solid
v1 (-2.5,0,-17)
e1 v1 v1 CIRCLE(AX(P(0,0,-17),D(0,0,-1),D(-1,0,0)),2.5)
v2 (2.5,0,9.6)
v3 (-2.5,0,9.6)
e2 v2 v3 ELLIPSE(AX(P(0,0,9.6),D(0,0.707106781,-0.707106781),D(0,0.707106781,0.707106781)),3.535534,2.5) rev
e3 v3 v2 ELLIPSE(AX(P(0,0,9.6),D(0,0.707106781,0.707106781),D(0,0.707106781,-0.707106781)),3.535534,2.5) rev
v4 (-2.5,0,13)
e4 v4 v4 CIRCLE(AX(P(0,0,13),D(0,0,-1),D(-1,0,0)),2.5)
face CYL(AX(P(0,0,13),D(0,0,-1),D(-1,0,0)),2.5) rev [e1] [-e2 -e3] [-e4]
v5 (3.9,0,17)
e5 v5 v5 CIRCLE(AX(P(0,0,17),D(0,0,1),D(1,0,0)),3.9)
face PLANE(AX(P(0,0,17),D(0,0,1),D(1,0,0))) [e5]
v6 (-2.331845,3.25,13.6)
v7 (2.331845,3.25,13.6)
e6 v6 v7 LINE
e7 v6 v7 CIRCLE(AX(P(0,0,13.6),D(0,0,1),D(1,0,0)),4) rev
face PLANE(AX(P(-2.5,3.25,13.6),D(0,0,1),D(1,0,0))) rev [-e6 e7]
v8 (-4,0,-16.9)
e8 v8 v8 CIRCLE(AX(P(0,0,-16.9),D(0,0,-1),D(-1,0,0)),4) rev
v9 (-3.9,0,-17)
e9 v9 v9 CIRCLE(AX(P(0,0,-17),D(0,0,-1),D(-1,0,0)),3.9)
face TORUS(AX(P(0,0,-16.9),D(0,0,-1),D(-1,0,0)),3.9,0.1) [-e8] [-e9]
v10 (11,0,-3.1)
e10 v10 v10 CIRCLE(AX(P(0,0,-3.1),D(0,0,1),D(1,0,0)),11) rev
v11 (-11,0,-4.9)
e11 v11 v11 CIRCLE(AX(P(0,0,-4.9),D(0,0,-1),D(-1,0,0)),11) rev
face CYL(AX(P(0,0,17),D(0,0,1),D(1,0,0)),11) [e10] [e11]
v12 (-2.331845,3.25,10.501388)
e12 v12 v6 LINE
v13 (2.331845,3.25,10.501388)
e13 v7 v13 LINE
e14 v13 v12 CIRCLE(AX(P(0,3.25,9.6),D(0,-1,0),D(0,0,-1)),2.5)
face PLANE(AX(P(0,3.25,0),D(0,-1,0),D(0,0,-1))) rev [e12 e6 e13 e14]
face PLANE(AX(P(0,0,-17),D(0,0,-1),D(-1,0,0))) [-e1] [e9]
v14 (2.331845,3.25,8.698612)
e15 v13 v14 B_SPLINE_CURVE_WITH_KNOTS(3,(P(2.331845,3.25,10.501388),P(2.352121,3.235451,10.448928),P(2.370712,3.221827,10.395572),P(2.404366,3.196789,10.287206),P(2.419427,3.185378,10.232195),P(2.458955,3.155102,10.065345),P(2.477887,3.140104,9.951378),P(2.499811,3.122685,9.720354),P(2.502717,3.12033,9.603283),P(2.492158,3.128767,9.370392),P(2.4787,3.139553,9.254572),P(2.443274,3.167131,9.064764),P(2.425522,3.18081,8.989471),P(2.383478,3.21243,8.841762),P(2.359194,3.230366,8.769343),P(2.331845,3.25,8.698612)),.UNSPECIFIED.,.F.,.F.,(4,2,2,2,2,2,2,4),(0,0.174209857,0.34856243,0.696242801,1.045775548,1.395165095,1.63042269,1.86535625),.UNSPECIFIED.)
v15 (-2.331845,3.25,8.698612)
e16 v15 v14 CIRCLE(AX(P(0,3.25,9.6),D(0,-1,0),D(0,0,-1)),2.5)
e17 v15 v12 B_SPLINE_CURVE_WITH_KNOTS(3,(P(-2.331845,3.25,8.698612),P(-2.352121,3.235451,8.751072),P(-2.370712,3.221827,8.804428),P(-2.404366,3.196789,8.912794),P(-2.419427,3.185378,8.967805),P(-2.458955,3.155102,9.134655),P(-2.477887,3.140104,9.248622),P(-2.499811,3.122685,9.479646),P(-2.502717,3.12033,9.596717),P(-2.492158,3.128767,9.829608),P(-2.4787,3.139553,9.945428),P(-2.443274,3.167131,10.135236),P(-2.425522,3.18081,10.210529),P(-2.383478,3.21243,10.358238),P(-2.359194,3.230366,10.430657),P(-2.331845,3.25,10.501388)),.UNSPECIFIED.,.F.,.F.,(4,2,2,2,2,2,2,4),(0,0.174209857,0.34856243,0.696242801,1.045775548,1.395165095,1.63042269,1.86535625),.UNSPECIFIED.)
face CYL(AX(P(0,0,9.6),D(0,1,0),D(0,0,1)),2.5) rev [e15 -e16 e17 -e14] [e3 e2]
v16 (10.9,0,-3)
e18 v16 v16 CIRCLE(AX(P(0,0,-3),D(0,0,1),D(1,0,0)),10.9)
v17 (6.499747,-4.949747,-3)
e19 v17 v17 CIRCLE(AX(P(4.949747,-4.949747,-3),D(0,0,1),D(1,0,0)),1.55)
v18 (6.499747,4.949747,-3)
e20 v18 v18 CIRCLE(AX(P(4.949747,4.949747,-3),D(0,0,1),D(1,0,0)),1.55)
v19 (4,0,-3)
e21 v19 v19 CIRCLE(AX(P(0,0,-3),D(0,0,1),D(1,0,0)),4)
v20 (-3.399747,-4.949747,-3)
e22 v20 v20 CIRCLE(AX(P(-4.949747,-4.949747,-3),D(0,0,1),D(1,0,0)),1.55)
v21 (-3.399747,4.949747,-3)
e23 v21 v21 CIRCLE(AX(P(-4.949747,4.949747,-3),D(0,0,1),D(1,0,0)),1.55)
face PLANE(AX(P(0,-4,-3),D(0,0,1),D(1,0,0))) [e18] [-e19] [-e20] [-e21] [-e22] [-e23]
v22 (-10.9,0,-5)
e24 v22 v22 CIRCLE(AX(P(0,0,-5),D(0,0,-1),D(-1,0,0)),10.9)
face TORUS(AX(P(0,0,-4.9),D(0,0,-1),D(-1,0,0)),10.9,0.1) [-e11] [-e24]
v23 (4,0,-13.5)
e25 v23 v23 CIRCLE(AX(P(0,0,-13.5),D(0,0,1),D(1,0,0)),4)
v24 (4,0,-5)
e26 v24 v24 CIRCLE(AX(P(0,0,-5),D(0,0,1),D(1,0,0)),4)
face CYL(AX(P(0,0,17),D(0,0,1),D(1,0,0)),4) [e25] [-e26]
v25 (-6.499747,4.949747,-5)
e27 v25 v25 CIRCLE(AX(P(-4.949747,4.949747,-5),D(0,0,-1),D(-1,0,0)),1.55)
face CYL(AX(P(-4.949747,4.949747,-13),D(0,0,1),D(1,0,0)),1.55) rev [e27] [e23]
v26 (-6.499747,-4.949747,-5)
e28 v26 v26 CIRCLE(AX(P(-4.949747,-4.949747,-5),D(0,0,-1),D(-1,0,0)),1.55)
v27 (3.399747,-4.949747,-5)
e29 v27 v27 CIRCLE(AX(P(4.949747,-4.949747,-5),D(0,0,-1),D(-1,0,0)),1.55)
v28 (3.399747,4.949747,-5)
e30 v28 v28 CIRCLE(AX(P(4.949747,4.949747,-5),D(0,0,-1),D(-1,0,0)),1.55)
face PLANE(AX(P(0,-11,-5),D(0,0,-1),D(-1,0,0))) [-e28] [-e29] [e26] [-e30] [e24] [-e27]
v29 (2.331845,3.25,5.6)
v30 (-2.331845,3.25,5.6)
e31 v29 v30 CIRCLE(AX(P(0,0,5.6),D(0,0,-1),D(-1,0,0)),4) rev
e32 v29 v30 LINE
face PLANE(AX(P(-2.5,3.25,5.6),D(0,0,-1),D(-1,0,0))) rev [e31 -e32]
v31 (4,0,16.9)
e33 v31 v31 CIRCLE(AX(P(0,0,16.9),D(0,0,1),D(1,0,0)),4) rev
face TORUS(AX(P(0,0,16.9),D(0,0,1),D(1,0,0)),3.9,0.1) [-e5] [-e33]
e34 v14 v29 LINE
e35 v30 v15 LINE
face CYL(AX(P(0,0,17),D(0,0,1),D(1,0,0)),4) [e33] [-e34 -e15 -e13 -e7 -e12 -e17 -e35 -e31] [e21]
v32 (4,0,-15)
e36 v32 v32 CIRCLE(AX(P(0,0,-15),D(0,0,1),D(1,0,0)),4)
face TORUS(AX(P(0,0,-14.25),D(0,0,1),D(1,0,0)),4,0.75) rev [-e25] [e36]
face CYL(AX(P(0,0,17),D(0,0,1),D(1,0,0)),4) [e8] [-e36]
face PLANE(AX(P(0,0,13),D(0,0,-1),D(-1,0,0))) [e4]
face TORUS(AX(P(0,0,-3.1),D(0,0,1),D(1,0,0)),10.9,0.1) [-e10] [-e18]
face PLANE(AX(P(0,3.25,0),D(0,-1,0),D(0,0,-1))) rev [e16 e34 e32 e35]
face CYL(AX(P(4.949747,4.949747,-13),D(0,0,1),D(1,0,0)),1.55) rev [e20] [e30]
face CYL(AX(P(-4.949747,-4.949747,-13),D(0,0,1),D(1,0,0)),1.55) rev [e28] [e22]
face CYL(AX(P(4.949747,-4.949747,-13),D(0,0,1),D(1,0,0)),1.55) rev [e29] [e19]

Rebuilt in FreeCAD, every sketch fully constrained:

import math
import FreeCAD as App
import Part
import Sketcher


def edges_at(feature, points):
    """Names of the edges that pass closest to the given points."""
    edges = feature.Shape.Edges
    near = lambda p: min(range(len(edges)), key=lambda i: edges[i].distToShape(Part.Vertex(*p))[0])
    return sorted({f"Edge{near(p) + 1}" for p in points})

doc = App.newDocument("Part")
body = doc.addObject("PartDesign::Body", "Body")

sketch1 = doc.addObject("Sketcher::SketchObject", "Sketch")
body.addObject(sketch1)
sketch1.AttachmentSupport = (doc.YZ_Plane, [""])
sketch1.MapMode = "FlatFace"
sketch1.addGeometry(Part.LineSegment(App.Vector(0, -17, 0), App.Vector(0, 17, 0)), False)
sketch1.addGeometry(Part.LineSegment(App.Vector(0, 17, 0), App.Vector(-4, 17, 0)), False)
sketch1.addGeometry(Part.LineSegment(App.Vector(-4, 17, 0), App.Vector(-4, -3, 0)), False)
sketch1.addGeometry(Part.LineSegment(App.Vector(-4, -3, 0), App.Vector(-11, -3, 0)), False)
sketch1.addGeometry(Part.LineSegment(App.Vector(-11, -3, 0), App.Vector(-11, -5, 0)), False)
sketch1.addGeometry(Part.LineSegment(App.Vector(-11, -5, 0), App.Vector(-4, -5, 0)), False)
sketch1.addGeometry(Part.LineSegment(App.Vector(-4, -5, 0), App.Vector(-4, -13.5, 0)), False)
sketch1.addGeometry(Part.ArcOfCircle(Part.Circle(App.Vector(-4, -14.2, 0), App.Vector(0, 0, 1), 0.8), math.radians(-90), math.radians(90)), False)
sketch1.addGeometry(Part.LineSegment(App.Vector(-4, -15, 0), App.Vector(-4, -17, 0)), False)
sketch1.addGeometry(Part.LineSegment(App.Vector(-4, -17, 0), App.Vector(0, -17, 0)), False)
sketch1.addConstraint(Sketcher.Constraint("Coincident", 0, 2, 1, 1))
sketch1.addConstraint(Sketcher.Constraint("Coincident", 1, 2, 2, 1))
sketch1.addConstraint(Sketcher.Constraint("Coincident", 2, 2, 3, 1))
sketch1.addConstraint(Sketcher.Constraint("Coincident", 3, 2, 4, 1))
sketch1.addConstraint(Sketcher.Constraint("Coincident", 4, 2, 5, 1))
sketch1.addConstraint(Sketcher.Constraint("Coincident", 5, 2, 6, 1))
sketch1.addConstraint(Sketcher.Constraint("Coincident", 6, 2, 7, 2))
sketch1.addConstraint(Sketcher.Constraint("Coincident", 7, 1, 8, 1))
sketch1.addConstraint(Sketcher.Constraint("Coincident", 8, 2, 9, 1))
sketch1.addConstraint(Sketcher.Constraint("Coincident", 9, 2, 0, 1))
sketch1.addConstraint(Sketcher.Constraint("Vertical", 0))
sketch1.addConstraint(Sketcher.Constraint("Horizontal", 1))
sketch1.addConstraint(Sketcher.Constraint("Vertical", 2))
sketch1.addConstraint(Sketcher.Constraint("Horizontal", 3))
sketch1.addConstraint(Sketcher.Constraint("Vertical", 4))
sketch1.addConstraint(Sketcher.Constraint("Horizontal", 5))
sketch1.addConstraint(Sketcher.Constraint("Vertical", 6))
sketch1.addConstraint(Sketcher.Constraint("Vertical", 8))
sketch1.addConstraint(Sketcher.Constraint("Horizontal", 9))
sketch1.addConstraint(Sketcher.Constraint("Symmetric", 0, 2, 9, 2, -1, 1))
sketch1.addConstraint(Sketcher.Constraint("Vertical", 7, 3, 1, 2))
sketch1.addConstraint(Sketcher.Constraint("Vertical", 2, 2, 5, 2))
sketch1.addConstraint(Sketcher.Constraint("Vertical", 6, 2, 7, 1))
sketch1.addConstraint(Sketcher.Constraint("Equal", 4, 8))
sketch1.addConstraint(Sketcher.Constraint("DistanceX", 1, 2, 1, 1, 4.0))
sketch1.addConstraint(Sketcher.Constraint("DistanceX", 3, 2, 3, 1, 7.0))
sketch1.addConstraint(Sketcher.Constraint("DistanceY", 0, 1, 0, 2, 34.0))
sketch1.addConstraint(Sketcher.Constraint("DistanceY", 2, 2, 2, 1, 20.0))
sketch1.addConstraint(Sketcher.Constraint("DistanceY", 4, 2, 4, 1, 2.0))
sketch1.addConstraint(Sketcher.Constraint("Radius", 7, 0.75))
revolution = doc.addObject("PartDesign::Revolution", "Revolution")
body.addObject(revolution)
revolution.Profile = sketch1
revolution.ReferenceAxis = (sketch1, ["V_Axis"])
revolution.Angle = 360

sketch2 = doc.addObject("Sketcher::SketchObject", "Sketch001")
body.addObject(sketch2)
sketch2.AttachmentSupport = (doc.XY_Plane, [""])
sketch2.MapMode = "FlatFace"
sketch2.AttachmentOffset = App.Placement(App.Vector(0, 0, -3), App.Rotation())
sketch2.addGeometry(Part.Circle(App.Vector(-4.9, 4.9, 0), App.Vector(0, 0, 1), 1.6), False)
sketch2.addGeometry(Part.Circle(App.Vector(4.9, 4.9, 0), App.Vector(0, 0, 1), 1.6), False)
sketch2.addGeometry(Part.Circle(App.Vector(4.9, -4.9, 0), App.Vector(0, 0, 1), 1.6), False)
sketch2.addGeometry(Part.Circle(App.Vector(-4.9, -4.9, 0), App.Vector(0, 0, 1), 1.6), False)
sketch2.addConstraint(Sketcher.Constraint("Equal", 0, 1))
sketch2.addConstraint(Sketcher.Constraint("Equal", 1, 2))
sketch2.addConstraint(Sketcher.Constraint("Equal", 2, 3))
sketch2.addConstraint(Sketcher.Constraint("Symmetric", 0, 3, 2, 3, -1, 1))
sketch2.addConstraint(Sketcher.Constraint("Symmetric", 1, 3, 3, 3, -1, 1))
sketch2.addConstraint(Sketcher.Constraint("Symmetric", 0, 3, 1, 3, -2))
sketch2.addConstraint(Sketcher.Constraint("Diameter", 0, 3.1))
sketch2.addConstraint(Sketcher.Constraint("DistanceX", 0, 3, -1, 1, 4.949747))
sketch2.addConstraint(Sketcher.Constraint("DistanceY", -1, 1, 0, 3, 4.949747))
pocket1 = doc.addObject("PartDesign::Pocket", "Pocket")
body.addObject(pocket1)
pocket1.Profile = sketch2
pocket1.Length = 10
doc.recompute()

fillet = doc.addObject("PartDesign::Fillet", "Fillet")
body.addObject(fillet)
fillet.Base = (pocket1, edges_at(pocket1, [
    (0, 4, -17),
    (0, 4, 17),
    (0, 11, -3),
    (0, 11, -5),
]))
fillet.Radius = 0.1

sketch3 = doc.addObject("Sketcher::SketchObject", "Sketch002")
body.addObject(sketch3)
sketch3.AttachmentSupport = (doc.XZ_Plane, [""])
sketch3.MapMode = "FlatFace"
sketch3.AttachmentOffset = App.Placement(App.Vector(0, 0, -4), App.Rotation())
sketch3.addGeometry(Part.LineSegment(App.Vector(-2, 6, 0), App.Vector(-2, 14, 0)), False)
sketch3.addGeometry(Part.LineSegment(App.Vector(-2, 14, 0), App.Vector(2, 14, 0)), False)
sketch3.addGeometry(Part.LineSegment(App.Vector(2, 14, 0), App.Vector(2, 6, 0)), False)
sketch3.addGeometry(Part.LineSegment(App.Vector(2, 6, 0), App.Vector(-2, 6, 0)), False)
sketch3.addConstraint(Sketcher.Constraint("Coincident", 0, 2, 1, 1))
sketch3.addConstraint(Sketcher.Constraint("Coincident", 1, 2, 2, 1))
sketch3.addConstraint(Sketcher.Constraint("Coincident", 2, 2, 3, 1))
sketch3.addConstraint(Sketcher.Constraint("Coincident", 3, 2, 0, 1))
sketch3.addConstraint(Sketcher.Constraint("Vertical", 0))
sketch3.addConstraint(Sketcher.Constraint("Horizontal", 1))
sketch3.addConstraint(Sketcher.Constraint("Vertical", 2))
sketch3.addConstraint(Sketcher.Constraint("Horizontal", 3))
sketch3.addConstraint(Sketcher.Constraint("DistanceX", 1, 1, 1, 2, 5.0))
sketch3.addConstraint(Sketcher.Constraint("DistanceY", 0, 1, 0, 2, 8.0))
sketch3.addConstraint(Sketcher.Constraint("DistanceX", 0, 2, -1, 1, 2.5))
sketch3.addConstraint(Sketcher.Constraint("DistanceY", -1, 1, 0, 2, 13.6))
pocket2 = doc.addObject("PartDesign::Pocket", "Pocket001")
body.addObject(pocket2)
pocket2.Profile = sketch3
pocket2.Length = 0.75
pocket2.Reversed = True

sketch4 = doc.addObject("Sketcher::SketchObject", "Sketch003")
body.addObject(sketch4)
sketch4.AttachmentSupport = (doc.XZ_Plane, [""])
sketch4.MapMode = "FlatFace"
sketch4.AttachmentOffset = App.Placement(App.Vector(0, 0, -3.25), App.Rotation())
sketch4.addGeometry(Part.Circle(App.Vector(0, 9.6, 0), App.Vector(0, 0, 1), 2.5), False)
sketch4.addConstraint(Sketcher.Constraint("PointOnObject", 0, 3, -2))
sketch4.addConstraint(Sketcher.Constraint("Diameter", 0, 5.0))
sketch4.addConstraint(Sketcher.Constraint("DistanceY", -1, 1, 0, 3, 9.6))
pocket3 = doc.addObject("PartDesign::Pocket", "Pocket002")
body.addObject(pocket3)
pocket3.Profile = sketch4
pocket3.Length = 3.25
pocket3.Reversed = True

sketch5 = doc.addObject("Sketcher::SketchObject", "Sketch004")
body.addObject(sketch5)
sketch5.AttachmentSupport = (doc.XY_Plane, [""])
sketch5.MapMode = "FlatFace"
sketch5.AttachmentOffset = App.Placement(App.Vector(0, 0, -17), App.Rotation())
sketch5.addGeometry(Part.Circle(App.Vector(0, 0, 0), App.Vector(0, 0, 1), 2.5), False)
sketch5.addConstraint(Sketcher.Constraint("Coincident", 0, 3, -1, 1))
sketch5.addConstraint(Sketcher.Constraint("Diameter", 0, 5.0))
pocket4 = doc.addObject("PartDesign::Pocket", "Pocket003")
body.addObject(pocket4)
pocket4.Profile = sketch5
pocket4.Length = 30
pocket4.Reversed = True

doc.recompute()
